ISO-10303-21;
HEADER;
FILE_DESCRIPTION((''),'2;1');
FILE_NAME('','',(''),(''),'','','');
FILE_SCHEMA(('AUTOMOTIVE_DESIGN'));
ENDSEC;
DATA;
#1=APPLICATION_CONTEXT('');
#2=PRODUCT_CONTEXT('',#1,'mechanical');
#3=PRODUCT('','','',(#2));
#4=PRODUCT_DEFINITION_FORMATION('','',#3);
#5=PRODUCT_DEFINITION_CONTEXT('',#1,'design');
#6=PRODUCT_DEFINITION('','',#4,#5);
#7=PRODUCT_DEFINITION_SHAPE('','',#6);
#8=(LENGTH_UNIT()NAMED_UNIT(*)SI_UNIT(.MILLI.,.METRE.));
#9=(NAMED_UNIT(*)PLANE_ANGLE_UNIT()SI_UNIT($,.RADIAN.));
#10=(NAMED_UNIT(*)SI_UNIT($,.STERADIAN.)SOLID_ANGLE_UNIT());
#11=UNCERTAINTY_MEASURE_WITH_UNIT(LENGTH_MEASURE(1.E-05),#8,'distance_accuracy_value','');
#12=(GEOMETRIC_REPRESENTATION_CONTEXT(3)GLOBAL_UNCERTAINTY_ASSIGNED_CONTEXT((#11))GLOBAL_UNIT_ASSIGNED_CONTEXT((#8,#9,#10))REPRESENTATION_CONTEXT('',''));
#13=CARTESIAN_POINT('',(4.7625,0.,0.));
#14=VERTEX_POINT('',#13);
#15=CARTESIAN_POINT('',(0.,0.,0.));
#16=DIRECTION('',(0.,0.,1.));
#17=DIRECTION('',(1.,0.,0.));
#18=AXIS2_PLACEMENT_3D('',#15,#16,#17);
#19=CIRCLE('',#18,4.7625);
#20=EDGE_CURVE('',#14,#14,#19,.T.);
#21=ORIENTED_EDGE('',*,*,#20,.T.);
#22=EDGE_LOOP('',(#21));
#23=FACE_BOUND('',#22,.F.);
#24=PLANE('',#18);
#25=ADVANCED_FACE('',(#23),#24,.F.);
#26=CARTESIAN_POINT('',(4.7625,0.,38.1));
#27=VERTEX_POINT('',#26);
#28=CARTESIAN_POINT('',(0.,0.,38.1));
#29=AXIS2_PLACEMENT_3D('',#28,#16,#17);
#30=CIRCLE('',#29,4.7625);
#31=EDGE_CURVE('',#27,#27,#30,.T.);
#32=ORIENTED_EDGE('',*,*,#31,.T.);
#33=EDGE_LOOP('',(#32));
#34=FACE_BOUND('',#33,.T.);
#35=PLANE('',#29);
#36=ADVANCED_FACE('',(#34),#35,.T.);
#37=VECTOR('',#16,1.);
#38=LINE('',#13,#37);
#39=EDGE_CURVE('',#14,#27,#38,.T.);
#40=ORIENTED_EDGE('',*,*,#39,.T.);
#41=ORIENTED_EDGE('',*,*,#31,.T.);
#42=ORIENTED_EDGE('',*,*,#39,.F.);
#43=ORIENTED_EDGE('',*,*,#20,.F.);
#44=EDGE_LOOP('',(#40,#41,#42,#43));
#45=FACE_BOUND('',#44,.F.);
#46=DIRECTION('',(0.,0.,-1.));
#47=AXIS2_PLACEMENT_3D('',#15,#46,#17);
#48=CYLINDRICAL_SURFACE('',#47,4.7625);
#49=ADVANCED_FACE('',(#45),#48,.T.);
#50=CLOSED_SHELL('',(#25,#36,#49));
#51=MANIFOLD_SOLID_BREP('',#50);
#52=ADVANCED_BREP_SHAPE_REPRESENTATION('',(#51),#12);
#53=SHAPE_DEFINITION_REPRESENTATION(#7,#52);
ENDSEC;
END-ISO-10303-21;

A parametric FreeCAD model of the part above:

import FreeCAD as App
import Part
import Sketcher
from FreeCAD import Vector
Q = App.Units.Quantity

doc = App.newDocument("Part")
body = doc.addObject("PartDesign::Body", "Body")

# Sketch on XY plane
sketch1 = body.newObject("Sketcher::SketchObject", "Sketch")
sketch1.AttachmentSupport = (doc.getObject("XY_Plane"), [""])
sketch1.MapMode = "FlatFace"
sketch1.addGeometry(Part.Circle(Vector(0, 0, 0), Vector(0, 0, 1), 4.8), False)
sketch1.addConstraint(Sketcher.Constraint("Coincident", 0, 3, -1, 1))
sketch1.addConstraint(Sketcher.Constraint("Diameter", 0, Q("0.375 in")))
pad1 = body.newObject("PartDesign::Pad", "Pad")
pad1.Profile = sketch1
pad1.Length = Q("1.5 in")

doc.recompute()
